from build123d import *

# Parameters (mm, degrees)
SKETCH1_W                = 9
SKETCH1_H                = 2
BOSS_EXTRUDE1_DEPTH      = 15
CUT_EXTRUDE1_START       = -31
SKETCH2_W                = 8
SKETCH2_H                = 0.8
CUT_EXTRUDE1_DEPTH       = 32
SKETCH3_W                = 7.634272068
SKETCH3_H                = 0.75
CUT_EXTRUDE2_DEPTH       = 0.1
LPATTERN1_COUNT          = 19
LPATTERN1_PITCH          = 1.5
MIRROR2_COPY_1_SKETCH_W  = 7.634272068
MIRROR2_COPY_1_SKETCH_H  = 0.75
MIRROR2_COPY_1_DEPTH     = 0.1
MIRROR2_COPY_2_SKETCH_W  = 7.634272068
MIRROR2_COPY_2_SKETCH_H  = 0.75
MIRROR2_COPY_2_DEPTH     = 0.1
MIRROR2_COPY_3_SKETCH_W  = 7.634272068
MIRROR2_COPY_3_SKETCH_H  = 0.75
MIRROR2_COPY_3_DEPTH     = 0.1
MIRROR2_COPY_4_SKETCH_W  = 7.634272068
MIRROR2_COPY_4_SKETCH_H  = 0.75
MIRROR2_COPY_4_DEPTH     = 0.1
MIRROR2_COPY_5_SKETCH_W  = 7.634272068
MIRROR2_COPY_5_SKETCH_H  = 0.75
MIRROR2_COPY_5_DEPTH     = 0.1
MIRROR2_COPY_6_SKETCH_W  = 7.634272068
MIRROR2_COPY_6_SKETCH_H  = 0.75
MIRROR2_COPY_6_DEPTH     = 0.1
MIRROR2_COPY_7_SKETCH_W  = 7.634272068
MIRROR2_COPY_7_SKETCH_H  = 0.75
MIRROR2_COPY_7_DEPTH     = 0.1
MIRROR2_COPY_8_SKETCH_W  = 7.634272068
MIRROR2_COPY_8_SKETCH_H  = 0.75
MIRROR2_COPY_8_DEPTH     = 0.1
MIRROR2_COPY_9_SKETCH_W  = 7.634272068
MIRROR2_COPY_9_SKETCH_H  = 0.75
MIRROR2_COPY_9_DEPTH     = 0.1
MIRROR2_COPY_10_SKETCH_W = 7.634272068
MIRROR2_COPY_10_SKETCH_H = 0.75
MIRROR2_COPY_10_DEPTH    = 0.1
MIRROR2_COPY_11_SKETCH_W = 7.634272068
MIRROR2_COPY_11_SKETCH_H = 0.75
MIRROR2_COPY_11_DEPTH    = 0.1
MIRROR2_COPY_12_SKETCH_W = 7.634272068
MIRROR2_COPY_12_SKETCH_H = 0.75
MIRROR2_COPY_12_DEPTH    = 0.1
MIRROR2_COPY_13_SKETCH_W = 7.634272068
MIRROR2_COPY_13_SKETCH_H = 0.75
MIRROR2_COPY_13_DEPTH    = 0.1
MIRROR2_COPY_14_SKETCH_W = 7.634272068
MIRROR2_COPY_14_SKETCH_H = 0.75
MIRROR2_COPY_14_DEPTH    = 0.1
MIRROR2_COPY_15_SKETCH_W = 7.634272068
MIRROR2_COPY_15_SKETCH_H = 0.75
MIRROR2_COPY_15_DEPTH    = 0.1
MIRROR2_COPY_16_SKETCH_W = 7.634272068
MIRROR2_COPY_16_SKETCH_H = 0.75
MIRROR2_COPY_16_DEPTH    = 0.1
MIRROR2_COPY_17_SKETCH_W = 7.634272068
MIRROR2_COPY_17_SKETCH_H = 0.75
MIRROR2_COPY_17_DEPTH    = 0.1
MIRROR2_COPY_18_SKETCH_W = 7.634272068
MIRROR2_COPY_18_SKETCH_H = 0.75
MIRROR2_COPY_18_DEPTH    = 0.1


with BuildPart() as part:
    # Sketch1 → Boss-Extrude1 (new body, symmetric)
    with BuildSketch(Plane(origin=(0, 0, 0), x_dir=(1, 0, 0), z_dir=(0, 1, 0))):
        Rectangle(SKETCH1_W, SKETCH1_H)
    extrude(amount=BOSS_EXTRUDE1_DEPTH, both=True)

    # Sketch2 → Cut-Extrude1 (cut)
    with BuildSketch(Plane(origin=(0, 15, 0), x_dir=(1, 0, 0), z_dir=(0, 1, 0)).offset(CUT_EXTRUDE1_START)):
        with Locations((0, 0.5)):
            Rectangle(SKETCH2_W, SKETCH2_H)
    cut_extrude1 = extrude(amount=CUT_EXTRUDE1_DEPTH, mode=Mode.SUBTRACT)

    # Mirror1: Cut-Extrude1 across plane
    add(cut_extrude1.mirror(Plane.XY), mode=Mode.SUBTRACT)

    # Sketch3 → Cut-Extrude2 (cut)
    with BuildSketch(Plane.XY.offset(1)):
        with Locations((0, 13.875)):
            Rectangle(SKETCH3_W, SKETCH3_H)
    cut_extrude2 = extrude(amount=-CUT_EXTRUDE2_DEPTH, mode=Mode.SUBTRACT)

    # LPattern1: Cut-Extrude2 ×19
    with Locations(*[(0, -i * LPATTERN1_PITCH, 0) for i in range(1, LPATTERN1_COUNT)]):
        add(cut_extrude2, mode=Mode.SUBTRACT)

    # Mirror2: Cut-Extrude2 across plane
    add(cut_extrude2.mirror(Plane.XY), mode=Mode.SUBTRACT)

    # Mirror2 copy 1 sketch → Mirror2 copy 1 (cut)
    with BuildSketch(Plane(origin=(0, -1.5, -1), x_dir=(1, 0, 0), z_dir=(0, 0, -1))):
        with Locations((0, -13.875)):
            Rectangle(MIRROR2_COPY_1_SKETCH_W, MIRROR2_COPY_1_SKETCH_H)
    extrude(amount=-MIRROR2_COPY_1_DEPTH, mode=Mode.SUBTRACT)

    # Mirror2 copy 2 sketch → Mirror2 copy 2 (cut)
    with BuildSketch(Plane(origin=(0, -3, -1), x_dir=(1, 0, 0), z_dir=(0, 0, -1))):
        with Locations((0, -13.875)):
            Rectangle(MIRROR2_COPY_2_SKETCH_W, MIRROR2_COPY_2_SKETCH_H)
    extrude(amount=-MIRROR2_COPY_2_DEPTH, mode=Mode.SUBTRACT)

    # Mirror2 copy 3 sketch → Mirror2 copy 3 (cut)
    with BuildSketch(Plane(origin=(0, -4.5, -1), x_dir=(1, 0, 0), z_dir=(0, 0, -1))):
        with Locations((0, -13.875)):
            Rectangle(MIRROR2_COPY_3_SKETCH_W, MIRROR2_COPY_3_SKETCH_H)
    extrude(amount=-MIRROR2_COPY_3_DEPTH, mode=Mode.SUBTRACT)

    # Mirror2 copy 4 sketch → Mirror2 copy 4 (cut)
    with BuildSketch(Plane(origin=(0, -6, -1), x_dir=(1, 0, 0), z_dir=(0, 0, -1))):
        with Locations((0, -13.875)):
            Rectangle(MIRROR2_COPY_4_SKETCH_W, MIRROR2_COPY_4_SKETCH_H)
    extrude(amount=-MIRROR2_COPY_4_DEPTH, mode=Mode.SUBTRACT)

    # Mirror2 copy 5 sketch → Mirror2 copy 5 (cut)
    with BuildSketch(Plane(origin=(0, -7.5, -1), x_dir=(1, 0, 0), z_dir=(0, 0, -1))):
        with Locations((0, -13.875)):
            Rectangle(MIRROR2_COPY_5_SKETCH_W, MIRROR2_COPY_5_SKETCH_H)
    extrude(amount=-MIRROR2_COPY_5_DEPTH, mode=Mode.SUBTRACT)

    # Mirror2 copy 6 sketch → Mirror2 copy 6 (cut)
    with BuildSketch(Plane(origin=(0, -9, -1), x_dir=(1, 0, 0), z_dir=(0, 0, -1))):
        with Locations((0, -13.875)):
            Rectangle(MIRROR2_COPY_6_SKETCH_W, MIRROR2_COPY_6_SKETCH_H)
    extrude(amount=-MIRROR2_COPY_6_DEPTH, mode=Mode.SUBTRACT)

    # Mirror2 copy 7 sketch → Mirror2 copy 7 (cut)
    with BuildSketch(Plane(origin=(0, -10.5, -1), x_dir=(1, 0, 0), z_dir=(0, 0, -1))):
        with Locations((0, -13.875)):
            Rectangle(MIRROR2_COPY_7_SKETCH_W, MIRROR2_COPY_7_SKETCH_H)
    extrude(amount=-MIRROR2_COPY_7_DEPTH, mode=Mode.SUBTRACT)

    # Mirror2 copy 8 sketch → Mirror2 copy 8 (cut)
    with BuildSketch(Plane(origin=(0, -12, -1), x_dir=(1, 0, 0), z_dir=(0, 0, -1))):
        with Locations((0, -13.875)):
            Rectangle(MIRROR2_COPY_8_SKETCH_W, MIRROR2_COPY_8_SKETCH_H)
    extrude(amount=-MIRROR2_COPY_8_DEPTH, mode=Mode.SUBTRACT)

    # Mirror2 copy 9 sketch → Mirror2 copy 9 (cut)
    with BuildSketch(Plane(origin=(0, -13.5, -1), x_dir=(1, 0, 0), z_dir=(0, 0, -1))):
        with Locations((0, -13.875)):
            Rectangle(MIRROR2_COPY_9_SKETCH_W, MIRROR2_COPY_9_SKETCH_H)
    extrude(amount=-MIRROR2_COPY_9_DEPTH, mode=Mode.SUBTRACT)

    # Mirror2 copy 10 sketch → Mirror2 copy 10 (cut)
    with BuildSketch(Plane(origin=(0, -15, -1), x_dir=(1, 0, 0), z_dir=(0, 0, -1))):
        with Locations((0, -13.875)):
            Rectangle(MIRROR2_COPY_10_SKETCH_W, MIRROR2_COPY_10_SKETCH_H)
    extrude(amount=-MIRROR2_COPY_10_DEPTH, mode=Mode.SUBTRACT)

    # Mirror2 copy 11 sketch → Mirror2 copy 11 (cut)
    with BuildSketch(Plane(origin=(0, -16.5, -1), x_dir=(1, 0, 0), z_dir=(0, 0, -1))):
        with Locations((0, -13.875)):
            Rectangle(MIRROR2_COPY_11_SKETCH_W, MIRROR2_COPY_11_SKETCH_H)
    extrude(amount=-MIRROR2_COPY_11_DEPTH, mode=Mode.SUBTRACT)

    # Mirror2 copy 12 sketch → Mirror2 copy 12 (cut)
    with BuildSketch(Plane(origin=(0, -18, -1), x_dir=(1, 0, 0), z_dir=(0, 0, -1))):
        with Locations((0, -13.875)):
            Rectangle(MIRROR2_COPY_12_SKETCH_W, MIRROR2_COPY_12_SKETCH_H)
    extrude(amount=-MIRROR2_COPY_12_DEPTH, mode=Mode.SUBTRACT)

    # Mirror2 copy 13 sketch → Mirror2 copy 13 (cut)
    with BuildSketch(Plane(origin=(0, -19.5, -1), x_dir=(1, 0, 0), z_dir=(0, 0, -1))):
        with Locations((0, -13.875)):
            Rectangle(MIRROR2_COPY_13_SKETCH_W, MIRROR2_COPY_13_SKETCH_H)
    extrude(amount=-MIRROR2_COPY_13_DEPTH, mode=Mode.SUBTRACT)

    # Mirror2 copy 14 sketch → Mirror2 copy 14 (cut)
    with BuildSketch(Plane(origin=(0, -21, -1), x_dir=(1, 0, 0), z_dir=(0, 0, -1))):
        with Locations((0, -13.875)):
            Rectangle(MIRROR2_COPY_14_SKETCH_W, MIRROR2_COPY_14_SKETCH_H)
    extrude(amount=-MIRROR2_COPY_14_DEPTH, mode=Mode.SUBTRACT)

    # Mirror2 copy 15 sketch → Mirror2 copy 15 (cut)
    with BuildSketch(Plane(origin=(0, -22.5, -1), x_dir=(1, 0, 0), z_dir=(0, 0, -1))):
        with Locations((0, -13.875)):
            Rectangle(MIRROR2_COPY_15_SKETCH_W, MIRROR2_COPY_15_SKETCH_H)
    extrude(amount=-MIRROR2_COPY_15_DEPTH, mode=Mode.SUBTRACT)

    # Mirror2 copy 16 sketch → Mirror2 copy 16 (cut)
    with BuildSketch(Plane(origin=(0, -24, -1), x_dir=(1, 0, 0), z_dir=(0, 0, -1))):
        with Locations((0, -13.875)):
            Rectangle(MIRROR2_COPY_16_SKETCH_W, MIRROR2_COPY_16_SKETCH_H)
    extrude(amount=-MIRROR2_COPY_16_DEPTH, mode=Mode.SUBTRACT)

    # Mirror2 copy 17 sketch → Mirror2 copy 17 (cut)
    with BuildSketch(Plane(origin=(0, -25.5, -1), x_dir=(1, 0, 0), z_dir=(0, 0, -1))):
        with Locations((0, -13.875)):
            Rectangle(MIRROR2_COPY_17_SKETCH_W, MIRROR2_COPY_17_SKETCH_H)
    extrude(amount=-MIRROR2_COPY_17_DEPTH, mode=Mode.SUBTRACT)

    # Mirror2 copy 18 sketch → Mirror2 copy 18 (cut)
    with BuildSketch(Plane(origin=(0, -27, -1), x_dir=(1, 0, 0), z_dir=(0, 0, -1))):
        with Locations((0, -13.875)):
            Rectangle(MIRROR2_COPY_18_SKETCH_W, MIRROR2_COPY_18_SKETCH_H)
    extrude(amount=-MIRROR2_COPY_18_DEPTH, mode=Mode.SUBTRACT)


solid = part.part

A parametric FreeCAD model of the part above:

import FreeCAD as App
import Part
import Sketcher

V = App.Vector
Q = App.Units.Quantity

doc = App.newDocument("Part")
body = doc.addObject("PartDesign::Body", "Body")

# Sketch on XZ plane
sketch1 = body.newObject("Sketcher::SketchObject", "Sketch")
sketch1.AttachmentSupport = (doc.getObject("XZ_Plane"), [""])
sketch1.MapMode = "FlatFace"
sketch1.addGeometry(Part.LineSegment(V(-4.5, -1, 0), V(-4.5, 1, 0)), False)
sketch1.addGeometry(Part.LineSegment(V(-4.5, 1, 0), V(4.5, 1, 0)), False)
sketch1.addGeometry(Part.LineSegment(V(4.5, 1, 0), V(4.5, -1, 0)), False)
sketch1.addGeometry(Part.LineSegment(V(4.5, -1, 0), V(-4.5, -1, 0)), False)
sketch1.addConstraint(Sketcher.Constraint("Coincident", 0, 2, 1, 1))
sketch1.addConstraint(Sketcher.Constraint("Coincident", 1, 2, 2, 1))
sketch1.addConstraint(Sketcher.Constraint("Coincident", 2, 2, 3, 1))
sketch1.addConstraint(Sketcher.Constraint("Coincident", 3, 2, 0, 1))
sketch1.addConstraint(Sketcher.Constraint("Vertical", 0))
sketch1.addConstraint(Sketcher.Constraint("Horizontal", 1))
sketch1.addConstraint(Sketcher.Constraint("Vertical", 2))
sketch1.addConstraint(Sketcher.Constraint("Horizontal", 3))
sketch1.addConstraint(Sketcher.Constraint("Symmetric", 0, 2, 2, 2, -1, 1))
sketch1.addConstraint(Sketcher.Constraint("DistanceX", 1, 1, 1, 2, Q("9 mm")))
sketch1.addConstraint(Sketcher.Constraint("DistanceY", 0, 1, 0, 2, Q("2 mm")))
pad1 = body.newObject("PartDesign::Pad", "Pad")
pad1.Profile = sketch1
pad1.Length = 30
pad1.Midplane = True

# Sketch on XZ plane
sketch2 = body.newObject("Sketcher::SketchObject", "Sketch001")
sketch2.AttachmentSupport = (doc.getObject("XZ_Plane"), [""])
sketch2.MapMode = "FlatFace"
sketch2.AttachmentOffset = App.Placement(V(0, 0, 16), App.Rotation())
sketch2.addGeometry(Part.LineSegment(V(-4, -0.9, 0), V(-4, -0.1, 0)), False)
sketch2.addGeometry(Part.LineSegment(V(-4, -0.1, 0), V(4, -0.1, 0)), False)
sketch2.addGeometry(Part.LineSegment(V(4, -0.1, 0), V(4, -0.9, 0)), False)
sketch2.addGeometry(Part.LineSegment(V(4, -0.9, 0), V(-4, -0.9, 0)), False)
sketch2.addConstraint(Sketcher.Constraint("Coincident", 0, 2, 1, 1))
sketch2.addConstraint(Sketcher.Constraint("Coincident", 1, 2, 2, 1))
sketch2.addConstraint(Sketcher.Constraint("Coincident", 2, 2, 3, 1))
sketch2.addConstraint(Sketcher.Constraint("Coincident", 3, 2, 0, 1))
sketch2.addConstraint(Sketcher.Constraint("Vertical", 0))
sketch2.addConstraint(Sketcher.Constraint("Horizontal", 1))
sketch2.addConstraint(Sketcher.Constraint("Vertical", 2))
sketch2.addConstraint(Sketcher.Constraint("Horizontal", 3))
sketch2.addConstraint(Sketcher.Constraint("DistanceX", 1, 1, 1, 2, Q("8 mm")))
sketch2.addConstraint(Sketcher.Constraint("DistanceY", 0, 1, 0, 2, Q("0.8 mm")))
sketch2.addConstraint(Sketcher.Constraint("DistanceX", 0, 2, -1, 1, Q("4 mm")))
sketch2.addConstraint(Sketcher.Constraint("DistanceY", 0, 2, -1, 1, Q("0.1 mm")))
pocket1 = body.newObject("PartDesign::Pocket", "Pocket")
pocket1.Profile = sketch2
pocket1.Length = 32
doc.recompute()

mirrored = body.newObject("PartDesign::Mirrored", "Mirrored")
mirrored.Originals = [pocket1]
mirrored.MirrorPlane = (doc.getObject("XY_Plane"), [""])
body.Tip = mirrored

# Sketch on XY plane
sketch3 = body.newObject("Sketcher::SketchObject", "Sketch002")
sketch3.AttachmentSupport = (doc.getObject("XY_Plane"), [""])
sketch3.MapMode = "FlatFace"
sketch3.AttachmentOffset = App.Placement(V(0, 0, 1), App.Rotation())
sketch3.addGeometry(Part.LineSegment(V(-3.8, 14.2, 0), V(-3.8, 13.5, 0)), False)
sketch3.addGeometry(Part.LineSegment(V(-3.8, 13.5, 0), V(3.8, 13.5, 0)), False)
sketch3.addGeometry(Part.LineSegment(V(3.8, 13.5, 0), V(3.8, 14.2, 0)), False)
sketch3.addGeometry(Part.LineSegment(V(3.8, 14.2, 0), V(-3.8, 14.2, 0)), False)
sketch3.addConstraint(Sketcher.Constraint("Coincident", 0, 2, 1, 1))
sketch3.addConstraint(Sketcher.Constraint("Coincident", 1, 2, 2, 1))
sketch3.addConstraint(Sketcher.Constraint("Coincident", 2, 2, 3, 1))
sketch3.addConstraint(Sketcher.Constraint("Coincident", 3, 2, 0, 1))
sketch3.addConstraint(Sketcher.Constraint("Vertical", 0))
sketch3.addConstraint(Sketcher.Constraint("Horizontal", 1))
sketch3.addConstraint(Sketcher.Constraint("Vertical", 2))
sketch3.addConstraint(Sketcher.Constraint("Horizontal", 3))
sketch3.addConstraint(Sketcher.Constraint("DistanceY", 0, 2, 0, 1, Q("0.75 mm")))
sketch3.addConstraint(Sketcher.Constraint("DistanceY", -1, 1, 0, 2, Q("13.5 mm")))
sketch3.addConstraint(Sketcher.Constraint("DistanceX", 1, 1, 1, 2, Q("7.634272 mm")))
sketch3.addConstraint(Sketcher.Constraint("DistanceX", 0, 2, -1, 1, Q("3.817136 mm")))
pocket2 = body.newObject("PartDesign::Pocket", "Pocket001")
pocket2.Profile = sketch3
pocket2.Length = 0.1
doc.recompute()

linearpattern = body.newObject("PartDesign::LinearPattern", "LinearPattern")
linearpattern.Originals = [pocket2]
linearpattern.Direction = (doc.getObject("Y_Axis"), [""])
linearpattern.Mode = "offset"
linearpattern.Offset = 1.5
linearpattern.Occurrences = 19
linearpattern.Reversed = True
body.Tip = linearpattern
doc.recompute()

mirrored2 = body.newObject("PartDesign::Mirrored", "Mirrored001")
mirrored2.Originals = [pocket2]
mirrored2.MirrorPlane = (doc.getObject("XY_Plane"), [""])
body.Tip = mirrored2

# Sketch on XY plane
sketch4 = body.newObject("Sketcher::SketchObject", "Sketch003")
sketch4.AttachmentSupport = (doc.getObject("XY_Plane"), [""])
sketch4.MapMode = "FlatFace"
sketch4.AttachmentOffset = App.Placement(V(0, 0, -1), App.Rotation())
sketch4.addGeometry(Part.LineSegment(V(-3.8, 12, 0), V(-3.8, 12.8, 0)), False)
sketch4.addGeometry(Part.LineSegment(V(-3.8, 12.8, 0), V(3.8, 12.8, 0)), False)
sketch4.addGeometry(Part.LineSegment(V(3.8, 12.8, 0), V(3.8, 12, 0)), False)
sketch4.addGeometry(Part.LineSegment(V(3.8, 12, 0), V(-3.8, 12, 0)), False)
sketch4.addConstraint(Sketcher.Constraint("Coincident", 0, 2, 1, 1))
sketch4.addConstraint(Sketcher.Constraint("Coincident", 1, 2, 2, 1))
sketch4.addConstraint(Sketcher.Constraint("Coincident", 2, 2, 3, 1))
sketch4.addConstraint(Sketcher.Constraint("Coincident", 3, 2, 0, 1))
sketch4.addConstraint(Sketcher.Constraint("Vertical", 0))
sketch4.addConstraint(Sketcher.Constraint("Horizontal", 1))
sketch4.addConstraint(Sketcher.Constraint("Vertical", 2))
sketch4.addConstraint(Sketcher.Constraint("Horizontal", 3))
sketch4.addConstraint(Sketcher.Constraint("DistanceY", -1, 1, 2, 2, Q("12 mm")))
sketch4.addConstraint(Sketcher.Constraint("DistanceY", 0, 1, 0, 2, Q("0.75 mm")))
sketch4.addConstraint(Sketcher.Constraint("DistanceX", 1, 1, 1, 2, Q("7.634272 mm")))
sketch4.addConstraint(Sketcher.Constraint("DistanceX", 0, 2, -1, 1, Q("3.817136 mm")))
pocket3 = body.newObject("PartDesign::Pocket", "Pocket002")
pocket3.Profile = sketch4
pocket3.Length = 0.1
pocket3.Reversed = True

# Sketch on XY plane
sketch5 = body.newObject("Sketcher::SketchObject", "Sketch004")
sketch5.AttachmentSupport = (doc.getObject("XY_Plane"), [""])
sketch5.MapMode = "FlatFace"
sketch5.AttachmentOffset = App.Placement(V(0, 0, -1), App.Rotation())
sketch5.addGeometry(Part.LineSegment(V(-3.8, 10.5, 0), V(-3.8, 11.2, 0)), False)
sketch5.addGeometry(Part.LineSegment(V(-3.8, 11.2, 0), V(3.8, 11.2, 0)), False)
sketch5.addGeometry(Part.LineSegment(V(3.8, 11.2, 0), V(3.8, 10.5, 0)), False)
sketch5.addGeometry(Part.LineSegment(V(3.8, 10.5, 0), V(-3.8, 10.5, 0)), False)
sketch5.addConstraint(Sketcher.Constraint("Coincident", 0, 2, 1, 1))
sketch5.addConstraint(Sketcher.Constraint("Coincident", 1, 2, 2, 1))
sketch5.addConstraint(Sketcher.Constraint("Coincident", 2, 2, 3, 1))
sketch5.addConstraint(Sketcher.Constraint("Coincident", 3, 2, 0, 1))
sketch5.addConstraint(Sketcher.Constraint("Vertical", 0))
sketch5.addConstraint(Sketcher.Constraint("Horizontal", 1))
sketch5.addConstraint(Sketcher.Constraint("Vertical", 2))
sketch5.addConstraint(Sketcher.Constraint("Horizontal", 3))
sketch5.addConstraint(Sketcher.Constraint("DistanceY", 0, 1, 0, 2, Q("0.75 mm")))
sketch5.addConstraint(Sketcher.Constraint("DistanceY", -1, 1, 2, 2, Q("10.5 mm")))
sketch5.addConstraint(Sketcher.Constraint("DistanceX", 1, 1, 1, 2, Q("7.634272 mm")))
sketch5.addConstraint(Sketcher.Constraint("DistanceX", 0, 2, -1, 1, Q("3.817136 mm")))
pocket4 = body.newObject("PartDesign::Pocket", "Pocket003")
pocket4.Profile = sketch5
pocket4.Length = 0.1
pocket4.Reversed = True

# Sketch on XY plane
sketch6 = body.newObject("Sketcher::SketchObject", "Sketch005")
sketch6.AttachmentSupport = (doc.getObject("XY_Plane"), [""])
sketch6.MapMode = "FlatFace"
sketch6.AttachmentOffset = App.Placement(V(0, 0, -1), App.Rotation())
sketch6.addGeometry(Part.LineSegment(V(-3.8, 9, 0), V(-3.8, 9.8, 0)), False)
sketch6.addGeometry(Part.LineSegment(V(-3.8, 9.8, 0), V(3.8, 9.8, 0)), False)
sketch6.addGeometry(Part.LineSegment(V(3.8, 9.8, 0), V(3.8, 9, 0)), False)
sketch6.addGeometry(Part.LineSegment(V(3.8, 9, 0), V(-3.8, 9, 0)), False)
sketch6.addConstraint(Sketcher.Constraint("Coincident", 0, 2, 1, 1))
sketch6.addConstraint(Sketcher.Constraint("Coincident", 1, 2, 2, 1))
sketch6.addConstraint(Sketcher.Constraint("Coincident", 2, 2, 3, 1))
sketch6.addConstraint(Sketcher.Constraint("Coincident", 3, 2, 0, 1))
sketch6.addConstraint(Sketcher.Constraint("Vertical", 0))
sketch6.addConstraint(Sketcher.Constraint("Horizontal", 1))
sketch6.addConstraint(Sketcher.Constraint("Vertical", 2))
sketch6.addConstraint(Sketcher.Constraint("Horizontal", 3))
sketch6.addConstraint(Sketcher.Constraint("DistanceY", -1, 1, 2, 2, Q("9 mm")))
sketch6.addConstraint(Sketcher.Constraint("DistanceY", 0, 1, 0, 2, Q("0.75 mm")))
sketch6.addConstraint(Sketcher.Constraint("DistanceX", 1, 1, 1, 2, Q("7.634272 mm")))
sketch6.addConstraint(Sketcher.Constraint("DistanceX", 0, 2, -1, 1, Q("3.817136 mm")))
pocket5 = body.newObject("PartDesign::Pocket", "Pocket004")
pocket5.Profile = sketch6
pocket5.Length = 0.1
pocket5.Reversed = True

# Sketch on XY plane
sketch7 = body.newObject("Sketcher::SketchObject", "Sketch006")
sketch7.AttachmentSupport = (doc.getObject("XY_Plane"), [""])
sketch7.MapMode = "FlatFace"
sketch7.AttachmentOffset = App.Placement(V(0, 0, -1), App.Rotation())
sketch7.addGeometry(Part.LineSegment(V(-3.8, 7.5, 0), V(-3.8, 8.2, 0)), False)
sketch7.addGeometry(Part.LineSegment(V(-3.8, 8.2, 0), V(3.8, 8.2, 0)), False)
sketch7.addGeometry(Part.LineSegment(V(3.8, 8.2, 0), V(3.8, 7.5, 0)), False)
sketch7.addGeometry(Part.LineSegment(V(3.8, 7.5, 0), V(-3.8, 7.5, 0)), False)
sketch7.addConstraint(Sketcher.Constraint("Coincident", 0, 2, 1, 1))
sketch7.addConstraint(Sketcher.Constraint("Coincident", 1, 2, 2, 1))
sketch7.addConstraint(Sketcher.Constraint("Coincident", 2, 2, 3, 1))
sketch7.addConstraint(Sketcher.Constraint("Coincident", 3, 2, 0, 1))
sketch7.addConstraint(Sketcher.Constraint("Vertical", 0))
sketch7.addConstraint(Sketcher.Constraint("Horizontal", 1))
sketch7.addConstraint(Sketcher.Constraint("Vertical", 2))
sketch7.addConstraint(Sketcher.Constraint("Horizontal", 3))
sketch7.addConstraint(Sketcher.Constraint("DistanceY", 0, 1, 0, 2, Q("0.75 mm")))
sketch7.addConstraint(Sketcher.Constraint("DistanceY", -1, 1, 2, 2, Q("7.5 mm")))
sketch7.addConstraint(Sketcher.Constraint("DistanceX", 1, 1, 1, 2, Q("7.634272 mm")))
sketch7.addConstraint(Sketcher.Constraint("DistanceX", 0, 2, -1, 1, Q("3.817136 mm")))
pocket6 = body.newObject("PartDesign::Pocket", "Pocket005")
pocket6.Profile = sketch7
pocket6.Length = 0.1
pocket6.Reversed = True

# Sketch on XY plane
sketch8 = body.newObject("Sketcher::SketchObject", "Sketch007")
sketch8.AttachmentSupport = (doc.getObject("XY_Plane"), [""])
sketch8.MapMode = "FlatFace"
sketch8.AttachmentOffset = App.Placement(V(0, 0, -1), App.Rotation())
sketch8.addGeometry(Part.LineSegment(V(-3.8, 6, 0), V(-3.8, 6.8, 0)), False)
sketch8.addGeometry(Part.LineSegment(V(-3.8, 6.8, 0), V(3.8, 6.8, 0)), False)
sketch8.addGeometry(Part.LineSegment(V(3.8, 6.8, 0), V(3.8, 6, 0)), False)
sketch8.addGeometry(Part.LineSegment(V(3.8, 6, 0), V(-3.8, 6, 0)), False)
sketch8.addConstraint(Sketcher.Constraint("Coincident", 0, 2, 1, 1))
sketch8.addConstraint(Sketcher.Constraint("Coincident", 1, 2, 2, 1))
sketch8.addConstraint(Sketcher.Constraint("Coincident", 2, 2, 3, 1))
sketch8.addConstraint(Sketcher.Constraint("Coincident", 3, 2, 0, 1))
sketch8.addConstraint(Sketcher.Constraint("Vertical", 0))
sketch8.addConstraint(Sketcher.Constraint("Horizontal", 1))
sketch8.addConstraint(Sketcher.Constraint("Vertical", 2))
sketch8.addConstraint(Sketcher.Constraint("Horizontal", 3))
sketch8.addConstraint(Sketcher.Constraint("DistanceY", -1, 1, 2, 2, Q("6 mm")))
sketch8.addConstraint(Sketcher.Constraint("DistanceY", 0, 1, 0, 2, Q("0.75 mm")))
sketch8.addConstraint(Sketcher.Constraint("DistanceX", 1, 1, 1, 2, Q("7.634272 mm")))
sketch8.addConstraint(Sketcher.Constraint("DistanceX", 0, 2, -1, 1, Q("3.817136 mm")))
pocket7 = body.newObject("PartDesign::Pocket", "Pocket006")
pocket7.Profile = sketch8
pocket7.Length = 0.1
pocket7.Reversed = True

# Sketch on XY plane
sketch9 = body.newObject("Sketcher::SketchObject", "Sketch008")
sketch9.AttachmentSupport = (doc.getObject("XY_Plane"), [""])
sketch9.MapMode = "FlatFace"
sketch9.AttachmentOffset = App.Placement(V(0, 0, -1), App.Rotation())
sketch9.addGeometry(Part.LineSegment(V(-3.8, 4.5, 0), V(-3.8, 5.2, 0)), False)
sketch9.addGeometry(Part.LineSegment(V(-3.8, 5.2, 0), V(3.8, 5.2, 0)), False)
sketch9.addGeometry(Part.LineSegment(V(3.8, 5.2, 0), V(3.8, 4.5, 0)), False)
sketch9.addGeometry(Part.LineSegment(V(3.8, 4.5, 0), V(-3.8, 4.5, 0)), False)
sketch9.addConstraint(Sketcher.Constraint("Coincident", 0, 2, 1, 1))
sketch9.addConstraint(Sketcher.Constraint("Coincident", 1, 2, 2, 1))
sketch9.addConstraint(Sketcher.Constraint("Coincident", 2, 2, 3, 1))
sketch9.addConstraint(Sketcher.Constraint("Coincident", 3, 2, 0, 1))
sketch9.addConstraint(Sketcher.Constraint("Vertical", 0))
sketch9.addConstraint(Sketcher.Constraint("Horizontal", 1))
sketch9.addConstraint(Sketcher.Constraint("Vertical", 2))
sketch9.addConstraint(Sketcher.Constraint("Horizontal", 3))
sketch9.addConstraint(Sketcher.Constraint("DistanceY", 0, 1, 0, 2, Q("0.75 mm")))
sketch9.addConstraint(Sketcher.Constraint("DistanceY", -1, 1, 2, 2, Q("4.5 mm")))
sketch9.addConstraint(Sketcher.Constraint("DistanceX", 1, 1, 1, 2, Q("7.634272 mm")))
sketch9.addConstraint(Sketcher.Constraint("DistanceX", 0, 2, -1, 1, Q("3.817136 mm")))
pocket8 = body.newObject("PartDesign::Pocket", "Pocket007")
pocket8.Profile = sketch9
pocket8.Length = 0.1
pocket8.Reversed = True

# Sketch on XY plane
sketch10 = body.newObject("Sketcher::SketchObject", "Sketch009")
sketch10.AttachmentSupport = (doc.getObject("XY_Plane"), [""])
sketch10.MapMode = "FlatFace"
sketch10.AttachmentOffset = App.Placement(V(0, 0, -1), App.Rotation())
sketch10.addGeometry(Part.LineSegment(V(-3.8, 3, 0), V(-3.8, 3.8, 0)), False)
sketch10.addGeometry(Part.LineSegment(V(-3.8, 3.8, 0), V(3.8, 3.8, 0)), False)
sketch10.addGeometry(Part.LineSegment(V(3.8, 3.8, 0), V(3.8, 3, 0)), False)
sketch10.addGeometry(Part.LineSegment(V(3.8, 3, 0), V(-3.8, 3, 0)), False)
sketch10.addConstraint(Sketcher.Constraint("Coincident", 0, 2, 1, 1))
sketch10.addConstraint(Sketcher.Constraint("Coincident", 1, 2, 2, 1))
sketch10.addConstraint(Sketcher.Constraint("Coincident", 2, 2, 3, 1))
sketch10.addConstraint(Sketcher.Constraint("Coincident", 3, 2, 0, 1))
sketch10.addConstraint(Sketcher.Constraint("Vertical", 0))
sketch10.addConstraint(Sketcher.Constraint("Horizontal", 1))
sketch10.addConstraint(Sketcher.Constraint("Vertical", 2))
sketch10.addConstraint(Sketcher.Constraint("Horizontal", 3))
sketch10.addConstraint(Sketcher.Constraint("DistanceY", -1, 1, 2, 2, Q("3 mm")))
sketch10.addConstraint(Sketcher.Constraint("DistanceY", 0, 1, 0, 2, Q("0.75 mm")))
sketch10.addConstraint(Sketcher.Constraint("DistanceX", 1, 1, 1, 2, Q("7.634272 mm")))
sketch10.addConstraint(Sketcher.Constraint("DistanceX", 0, 2, -1, 1, Q("3.817136 mm")))
pocket9 = body.newObject("PartDesign::Pocket", "Pocket008")
pocket9.Profile = sketch10
pocket9.Length = 0.1
pocket9.Reversed = True

# Sketch on XY plane
sketch11 = body.newObject("Sketcher::SketchObject", "Sketch010")
sketch11.AttachmentSupport = (doc.getObject("XY_Plane"), [""])
sketch11.MapMode = "FlatFace"
sketch11.AttachmentOffset = App.Placement(V(0, 0, -1), App.Rotation())
sketch11.addGeometry(Part.LineSegment(V(-3.8, 1.5, 0), V(-3.8, 2.2, 0)), False)
sketch11.addGeometry(Part.LineSegment(V(-3.8, 2.2, 0), V(3.8, 2.2, 0)), False)
sketch11.addGeometry(Part.LineSegment(V(3.8, 2.2, 0), V(3.8, 1.5, 0)), False)
sketch11.addGeometry(Part.LineSegment(V(3.8, 1.5, 0), V(-3.8, 1.5, 0)), False)
sketch11.addConstraint(Sketcher.Constraint("Coincident", 0, 2, 1, 1))
sketch11.addConstraint(Sketcher.Constraint("Coincident", 1, 2, 2, 1))
sketch11.addConstraint(Sketcher.Constraint("Coincident", 2, 2, 3, 1))
sketch11.addConstraint(Sketcher.Constraint("Coincident", 3, 2, 0, 1))
sketch11.addConstraint(Sketcher.Constraint("Vertical", 0))
sketch11.addConstraint(Sketcher.Constraint("Horizontal", 1))
sketch11.addConstraint(Sketcher.Constraint("Vertical", 2))
sketch11.addConstraint(Sketcher.Constraint("Horizontal", 3))
sketch11.addConstraint(Sketcher.Constraint("DistanceY", 0, 1, 0, 2, Q("0.75 mm")))
sketch11.addConstraint(Sketcher.Constraint("DistanceY", -1, 1, 2, 2, Q("1.5 mm")))
sketch11.addConstraint(Sketcher.Constraint("DistanceX", 1, 1, 1, 2, Q("7.634272 mm")))
sketch11.addConstraint(Sketcher.Constraint("DistanceX", 0, 2, -1, 1, Q("3.817136 mm")))
pocket10 = body.newObject("PartDesign::Pocket", "Pocket009")
pocket10.Profile = sketch11
pocket10.Length = 0.1
pocket10.Reversed = True

# Sketch on XY plane
sketch12 = body.newObject("Sketcher::SketchObject", "Sketch011")
sketch12.AttachmentSupport = (doc.getObject("XY_Plane"), [""])
sketch12.MapMode = "FlatFace"
sketch12.AttachmentOffset = App.Placement(V(0, 0, -1), App.Rotation())
sketch12.addGeometry(Part.LineSegment(V(-3.8, 0, 0), V(-3.8, 0.8, 0)), False)
sketch12.addGeometry(Part.LineSegment(V(-3.8, 0.8, 0), V(3.8, 0.8, 0)), False)
sketch12.addGeometry(Part.LineSegment(V(3.8, 0.8, 0), V(3.8, 0, 0)), False)
sketch12.addGeometry(Part.LineSegment(V(3.8, 0, 0), V(-3.8, 0, 0)), False)
sketch12.addConstraint(Sketcher.Constraint("Coincident", 0, 2, 1, 1))
sketch12.addConstraint(Sketcher.Constraint("Coincident", 1, 2, 2, 1))
sketch12.addConstraint(Sketcher.Constraint("Coincident", 2, 2, 3, 1))
sketch12.addConstraint(Sketcher.Constraint("Coincident", 3, 2, 0, 1))
sketch12.addConstraint(Sketcher.Constraint("Vertical", 0))
sketch12.addConstraint(Sketcher.Constraint("Horizontal", 1))
sketch12.addConstraint(Sketcher.Constraint("Vertical", 2))
sketch12.addConstraint(Sketcher.Constraint("Horizontal", 3))
sketch12.addConstraint(Sketcher.Constraint("Symmetric", 2, 2, 3, 2, -1, 1))
sketch12.addConstraint(Sketcher.Constraint("DistanceY", 0, 1, 0, 2, Q("0.75 mm")))
sketch12.addConstraint(Sketcher.Constraint("DistanceX", 1, 1, 1, 2, Q("7.634272 mm")))
pocket11 = body.newObject("PartDesign::Pocket", "Pocket010")
pocket11.Profile = sketch12
pocket11.Length = 0.1
pocket11.Reversed = True

# Sketch on XY plane
sketch13 = body.newObject("Sketcher::SketchObject", "Sketch012")
sketch13.AttachmentSupport = (doc.getObject("XY_Plane"), [""])
sketch13.MapMode = "FlatFace"
sketch13.AttachmentOffset = App.Placement(V(0, 0, -1), App.Rotation())
sketch13.addGeometry(Part.LineSegment(V(-3.8, -1.5, 0), V(-3.8, -0.8, 0)), False)
sketch13.addGeometry(Part.LineSegment(V(-3.8, -0.8, 0), V(3.8, -0.8, 0)), False)
sketch13.addGeometry(Part.LineSegment(V(3.8, -0.8, 0), V(3.8, -1.5, 0)), False)
sketch13.addGeometry(Part.LineSegment(V(3.8, -1.5, 0), V(-3.8, -1.5, 0)), False)
sketch13.addConstraint(Sketcher.Constraint("Coincident", 0, 2, 1, 1))
sketch13.addConstraint(Sketcher.Constraint("Coincident", 1, 2, 2, 1))
sketch13.addConstraint(Sketcher.Constraint("Coincident", 2, 2, 3, 1))
sketch13.addConstraint(Sketcher.Constraint("Coincident", 3, 2, 0, 1))
sketch13.addConstraint(Sketcher.Constraint("Vertical", 0))
sketch13.addConstraint(Sketcher.Constraint("Horizontal", 1))
sketch13.addConstraint(Sketcher.Constraint("Vertical", 2))
sketch13.addConstraint(Sketcher.Constraint("Horizontal", 3))
sketch13.addConstraint(Sketcher.Constraint("DistanceY", 0, 1, 0, 2, Q("0.75 mm")))
sketch13.addConstraint(Sketcher.Constraint("DistanceY", 2, 2, -1, 1, Q("1.5 mm")))
sketch13.addConstraint(Sketcher.Constraint("DistanceX", 1, 1, 1, 2, Q("7.634272 mm")))
sketch13.addConstraint(Sketcher.Constraint("DistanceX", 0, 2, -1, 1, Q("3.817136 mm")))
pocket12 = body.newObject("PartDesign::Pocket", "Pocket011")
pocket12.Profile = sketch13
pocket12.Length = 0.1
pocket12.Reversed = True

# Sketch on XY plane
sketch14 = body.newObject("Sketcher::SketchObject", "Sketch013")
sketch14.AttachmentSupport = (doc.getObject("XY_Plane"), [""])
sketch14.MapMode = "FlatFace"
sketch14.AttachmentOffset = App.Placement(V(0, 0, -1), App.Rotation())
sketch14.addGeometry(Part.LineSegment(V(-3.8, -3, 0), V(-3.8, -2.2, 0)), False)
sketch14.addGeometry(Part.LineSegment(V(-3.8, -2.2, 0), V(3.8, -2.2, 0)), False)
sketch14.addGeometry(Part.LineSegment(V(3.8, -2.2, 0), V(3.8, -3, 0)), False)
sketch14.addGeometry(Part.LineSegment(V(3.8, -3, 0), V(-3.8, -3, 0)), False)
sketch14.addConstraint(Sketcher.Constraint("Coincident", 0, 2, 1, 1))
sketch14.addConstraint(Sketcher.Constraint("Coincident", 1, 2, 2, 1))
sketch14.addConstraint(Sketcher.Constraint("Coincident", 2, 2, 3, 1))
sketch14.addConstraint(Sketcher.Constraint("Coincident", 3, 2, 0, 1))
sketch14.addConstraint(Sketcher.Constraint("Vertical", 0))
sketch14.addConstraint(Sketcher.Constraint("Horizontal", 1))
sketch14.addConstraint(Sketcher.Constraint("Vertical", 2))
sketch14.addConstraint(Sketcher.Constraint("Horizontal", 3))
sketch14.addConstraint(Sketcher.Constraint("DistanceY", 2, 2, -1, 1, Q("3 mm")))
sketch14.addConstraint(Sketcher.Constraint("DistanceY", 0, 1, 0, 2, Q("0.75 mm")))
sketch14.addConstraint(Sketcher.Constraint("DistanceX", 1, 1, 1, 2, Q("7.634272 mm")))
sketch14.addConstraint(Sketcher.Constraint("DistanceX", 0, 2, -1, 1, Q("3.817136 mm")))
pocket13 = body.newObject("PartDesign::Pocket", "Pocket012")
pocket13.Profile = sketch14
pocket13.Length = 0.1
pocket13.Reversed = True

# Sketch on XY plane
sketch15 = body.newObject("Sketcher::SketchObject", "Sketch014")
sketch15.AttachmentSupport = (doc.getObject("XY_Plane"), [""])
sketch15.MapMode = "FlatFace"
sketch15.AttachmentOffset = App.Placement(V(0, 0, -1), App.Rotation())
sketch15.addGeometry(Part.LineSegment(V(-3.8, -4.5, 0), V(-3.8, -3.8, 0)), False)
sketch15.addGeometry(Part.LineSegment(V(-3.8, -3.8, 0), V(3.8, -3.8, 0)), False)
sketch15.addGeometry(Part.LineSegment(V(3.8, -3.8, 0), V(3.8, -4.5, 0)), False)
sketch15.addGeometry(Part.LineSegment(V(3.8, -4.5, 0), V(-3.8, -4.5, 0)), False)
sketch15.addConstraint(Sketcher.Constraint("Coincident", 0, 2, 1, 1))
sketch15.addConstraint(Sketcher.Constraint("Coincident", 1, 2, 2, 1))
sketch15.addConstraint(Sketcher.Constraint("Coincident", 2, 2, 3, 1))
sketch15.addConstraint(Sketcher.Constraint("Coincident", 3, 2, 0, 1))
sketch15.addConstraint(Sketcher.Constraint("Vertical", 0))
sketch15.addConstraint(Sketcher.Constraint("Horizontal", 1))
sketch15.addConstraint(Sketcher.Constraint("Vertical", 2))
sketch15.addConstraint(Sketcher.Constraint("Horizontal", 3))
sketch15.addConstraint(Sketcher.Constraint("DistanceY", 0, 1, 0, 2, Q("0.75 mm")))
sketch15.addConstraint(Sketcher.Constraint("DistanceY", 2, 2, -1, 1, Q("4.5 mm")))
sketch15.addConstraint(Sketcher.Constraint("DistanceX", 1, 1, 1, 2, Q("7.634272 mm")))
sketch15.addConstraint(Sketcher.Constraint("DistanceX", 0, 2, -1, 1, Q("3.817136 mm")))
pocket14 = body.newObject("PartDesign::Pocket", "Pocket013")
pocket14.Profile = sketch15
pocket14.Length = 0.1
pocket14.Reversed = True

# Sketch on XY plane
sketch16 = body.newObject("Sketcher::SketchObject", "Sketch015")
sketch16.AttachmentSupport = (doc.getObject("XY_Plane"), [""])
sketch16.MapMode = "FlatFace"
sketch16.AttachmentOffset = App.Placement(V(0, 0, -1), App.Rotation())
sketch16.addGeometry(Part.LineSegment(V(-3.8, -6, 0), V(-3.8, -5.2, 0)), False)
sketch16.addGeometry(Part.LineSegment(V(-3.8, -5.2, 0), V(3.8, -5.2, 0)), False)
sketch16.addGeometry(Part.LineSegment(V(3.8, -5.2, 0), V(3.8, -6, 0)), False)
sketch16.addGeometry(Part.LineSegment(V(3.8, -6, 0), V(-3.8, -6, 0)), False)
sketch16.addConstraint(Sketcher.Constraint("Coincident", 0, 2, 1, 1))
sketch16.addConstraint(Sketcher.Constraint("Coincident", 1, 2, 2, 1))
sketch16.addConstraint(Sketcher.Constraint("Coincident", 2, 2, 3, 1))
sketch16.addConstraint(Sketcher.Constraint("Coincident", 3, 2, 0, 1))
sketch16.addConstraint(Sketcher.Constraint("Vertical", 0))
sketch16.addConstraint(Sketcher.Constraint("Horizontal", 1))
sketch16.addConstraint(Sketcher.Constraint("Vertical", 2))
sketch16.addConstraint(Sketcher.Constraint("Horizontal", 3))
sketch16.addConstraint(Sketcher.Constraint("DistanceY", 2, 2, -1, 1, Q("6 mm")))
sketch16.addConstraint(Sketcher.Constraint("DistanceY", 0, 1, 0, 2, Q("0.75 mm")))
sketch16.addConstraint(Sketcher.Constraint("DistanceX", 1, 1, 1, 2, Q("7.634272 mm")))
sketch16.addConstraint(Sketcher.Constraint("DistanceX", 0, 2, -1, 1, Q("3.817136 mm")))
pocket15 = body.newObject("PartDesign::Pocket", "Pocket014")
pocket15.Profile = sketch16
pocket15.Length = 0.1
pocket15.Reversed = True

# Sketch on XY plane
sketch17 = body.newObject("Sketcher::SketchObject", "Sketch016")
sketch17.AttachmentSupport = (doc.getObject("XY_Plane"), [""])
sketch17.MapMode = "FlatFace"
sketch17.AttachmentOffset = App.Placement(V(0, 0, -1), App.Rotation())
sketch17.addGeometry(Part.LineSegment(V(-3.8, -7.5, 0), V(-3.8, -6.8, 0)), False)
sketch17.addGeometry(Part.LineSegment(V(-3.8, -6.8, 0), V(3.8, -6.8, 0)), False)
sketch17.addGeometry(Part.LineSegment(V(3.8, -6.8, 0), V(3.8, -7.5, 0)), False)
sketch17.addGeometry(Part.LineSegment(V(3.8, -7.5, 0), V(-3.8, -7.5, 0)), False)
sketch17.addConstraint(Sketcher.Constraint("Coincident", 0, 2, 1, 1))
sketch17.addConstraint(Sketcher.Constraint("Coincident", 1, 2, 2, 1))
sketch17.addConstraint(Sketcher.Constraint("Coincident", 2, 2, 3, 1))
sketch17.addConstraint(Sketcher.Constraint("Coincident", 3, 2, 0, 1))
sketch17.addConstraint(Sketcher.Constraint("Vertical", 0))
sketch17.addConstraint(Sketcher.Constraint("Horizontal", 1))
sketch17.addConstraint(Sketcher.Constraint("Vertical", 2))
sketch17.addConstraint(Sketcher.Constraint("Horizontal", 3))
sketch17.addConstraint(Sketcher.Constraint("DistanceY", 0, 1, 0, 2, Q("0.75 mm")))
sketch17.addConstraint(Sketcher.Constraint("DistanceY", 2, 2, -1, 1, Q("7.5 mm")))
sketch17.addConstraint(Sketcher.Constraint("DistanceX", 1, 1, 1, 2, Q("7.634272 mm")))
sketch17.addConstraint(Sketcher.Constraint("DistanceX", 0, 2, -1, 1, Q("3.817136 mm")))
pocket16 = body.newObject("PartDesign::Pocket", "Pocket015")
pocket16.Profile = sketch17
pocket16.Length = 0.1
pocket16.Reversed = True

# Sketch on XY plane
sketch18 = body.newObject("Sketcher::SketchObject", "Sketch017")
sketch18.AttachmentSupport = (doc.getObject("XY_Plane"), [""])
sketch18.MapMode = "FlatFace"
sketch18.AttachmentOffset = App.Placement(V(0, 0, -1), App.Rotation())
sketch18.addGeometry(Part.LineSegment(V(-3.8, -9, 0), V(-3.8, -8.2, 0)), False)
sketch18.addGeometry(Part.LineSegment(V(-3.8, -8.2, 0), V(3.8, -8.2, 0)), False)
sketch18.addGeometry(Part.LineSegment(V(3.8, -8.2, 0), V(3.8, -9, 0)), False)
sketch18.addGeometry(Part.LineSegment(V(3.8, -9, 0), V(-3.8, -9, 0)), False)
sketch18.addConstraint(Sketcher.Constraint("Coincident", 0, 2, 1, 1))
sketch18.addConstraint(Sketcher.Constraint("Coincident", 1, 2, 2, 1))
sketch18.addConstraint(Sketcher.Constraint("Coincident", 2, 2, 3, 1))
sketch18.addConstraint(Sketcher.Constraint("Coincident", 3, 2, 0, 1))
sketch18.addConstraint(Sketcher.Constraint("Vertical", 0))
sketch18.addConstraint(Sketcher.Constraint("Horizontal", 1))
sketch18.addConstraint(Sketcher.Constraint("Vertical", 2))
sketch18.addConstraint(Sketcher.Constraint("Horizontal", 3))
sketch18.addConstraint(Sketcher.Constraint("DistanceY", 2, 2, -1, 1, Q("9 mm")))
sketch18.addConstraint(Sketcher.Constraint("DistanceY", 0, 1, 0, 2, Q("0.75 mm")))
sketch18.addConstraint(Sketcher.Constraint("DistanceX", 1, 1, 1, 2, Q("7.634272 mm")))
sketch18.addConstraint(Sketcher.Constraint("DistanceX", 0, 2, -1, 1, Q("3.817136 mm")))
pocket17 = body.newObject("PartDesign::Pocket", "Pocket016")
pocket17.Profile = sketch18
pocket17.Length = 0.1
pocket17.Reversed = True

# Sketch on XY plane
sketch19 = body.newObject("Sketcher::SketchObject", "Sketch018")
sketch19.AttachmentSupport = (doc.getObject("XY_Plane"), [""])
sketch19.MapMode = "FlatFace"
sketch19.AttachmentOffset = App.Placement(V(0, 0, -1), App.Rotation())
sketch19.addGeometry(Part.LineSegment(V(-3.8, -10.5, 0), V(-3.8, -9.8, 0)), False)
sketch19.addGeometry(Part.LineSegment(V(-3.8, -9.8, 0), V(3.8, -9.8, 0)), False)
sketch19.addGeometry(Part.LineSegment(V(3.8, -9.8, 0), V(3.8, -10.5, 0)), False)
sketch19.addGeometry(Part.LineSegment(V(3.8, -10.5, 0), V(-3.8, -10.5, 0)), False)
sketch19.addConstraint(Sketcher.Constraint("Coincident", 0, 2, 1, 1))
sketch19.addConstraint(Sketcher.Constraint("Coincident", 1, 2, 2, 1))
sketch19.addConstraint(Sketcher.Constraint("Coincident", 2, 2, 3, 1))
sketch19.addConstraint(Sketcher.Constraint("Coincident", 3, 2, 0, 1))
sketch19.addConstraint(Sketcher.Constraint("Vertical", 0))
sketch19.addConstraint(Sketcher.Constraint("Horizontal", 1))
sketch19.addConstraint(Sketcher.Constraint("Vertical", 2))
sketch19.addConstraint(Sketcher.Constraint("Horizontal", 3))
sketch19.addConstraint(Sketcher.Constraint("DistanceY", 0, 1, 0, 2, Q("0.75 mm")))
sketch19.addConstraint(Sketcher.Constraint("DistanceY", 2, 2, -1, 1, Q("10.5 mm")))
sketch19.addConstraint(Sketcher.Constraint("DistanceX", 1, 1, 1, 2, Q("7.634272 mm")))
sketch19.addConstraint(Sketcher.Constraint("DistanceX", 0, 2, -1, 1, Q("3.817136 mm")))
pocket18 = body.newObject("PartDesign::Pocket", "Pocket017")
pocket18.Profile = sketch19
pocket18.Length = 0.1
pocket18.Reversed = True

# Sketch on XY plane
sketch20 = body.newObject("Sketcher::SketchObject", "Sketch019")
sketch20.AttachmentSupport = (doc.getObject("XY_Plane"), [""])
sketch20.MapMode = "FlatFace"
sketch20.AttachmentOffset = App.Placement(V(0, 0, -1), App.Rotation())
sketch20.addGeometry(Part.LineSegment(V(-3.8, -12, 0), V(-3.8, -11.2, 0)), False)
sketch20.addGeometry(Part.LineSegment(V(-3.8, -11.2, 0), V(3.8, -11.2, 0)), False)
sketch20.addGeometry(Part.LineSegment(V(3.8, -11.2, 0), V(3.8, -12, 0)), False)
sketch20.addGeometry(Part.LineSegment(V(3.8, -12, 0), V(-3.8, -12, 0)), False)
sketch20.addConstraint(Sketcher.Constraint("Coincident", 0, 2, 1, 1))
sketch20.addConstraint(Sketcher.Constraint("Coincident", 1, 2, 2, 1))
sketch20.addConstraint(Sketcher.Constraint("Coincident", 2, 2, 3, 1))
sketch20.addConstraint(Sketcher.Constraint("Coincident", 3, 2, 0, 1))
sketch20.addConstraint(Sketcher.Constraint("Vertical", 0))
sketch20.addConstraint(Sketcher.Constraint("Horizontal", 1))
sketch20.addConstraint(Sketcher.Constraint("Vertical", 2))
sketch20.addConstraint(Sketcher.Constraint("Horizontal", 3))
sketch20.addConstraint(Sketcher.Constraint("DistanceY", 2, 2, -1, 1, Q("12 mm")))
sketch20.addConstraint(Sketcher.Constraint("DistanceY", 0, 1, 0, 2, Q("0.75 mm")))
sketch20.addConstraint(Sketcher.Constraint("DistanceX", 1, 1, 1, 2, Q("7.634272 mm")))
sketch20.addConstraint(Sketcher.Constraint("DistanceX", 0, 2, -1, 1, Q("3.817136 mm")))
pocket19 = body.newObject("PartDesign::Pocket", "Pocket018")
pocket19.Profile = sketch20
pocket19.Length = 0.1
pocket19.Reversed = True

# Sketch on XY plane
sketch21 = body.newObject("Sketcher::SketchObject", "Sketch020")
sketch21.AttachmentSupport = (doc.getObject("XY_Plane"), [""])
sketch21.MapMode = "FlatFace"
sketch21.AttachmentOffset = App.Placement(V(0, 0, -1), App.Rotation())
sketch21.addGeometry(Part.LineSegment(V(-3.8, -13.5, 0), V(-3.8, -12.8, 0)), False)
sketch21.addGeometry(Part.LineSegment(V(-3.8, -12.8, 0), V(3.8, -12.8, 0)), False)
sketch21.addGeometry(Part.LineSegment(V(3.8, -12.8, 0), V(3.8, -13.5, 0)), False)
sketch21.addGeometry(Part.LineSegment(V(3.8, -13.5, 0), V(-3.8, -13.5, 0)), False)
sketch21.addConstraint(Sketcher.Constraint("Coincident", 0, 2, 1, 1))
sketch21.addConstraint(Sketcher.Constraint("Coincident", 1, 2, 2, 1))
sketch21.addConstraint(Sketcher.Constraint("Coincident", 2, 2, 3, 1))
sketch21.addConstraint(Sketcher.Constraint("Coincident", 3, 2, 0, 1))
sketch21.addConstraint(Sketcher.Constraint("Vertical", 0))
sketch21.addConstraint(Sketcher.Constraint("Horizontal", 1))
sketch21.addConstraint(Sketcher.Constraint("Vertical", 2))
sketch21.addConstraint(Sketcher.Constraint("Horizontal", 3))
sketch21.addConstraint(Sketcher.Constraint("DistanceY", 0, 1, 0, 2, Q("0.75 mm")))
sketch21.addConstraint(Sketcher.Constraint("DistanceY", 2, 2, -1, 1, Q("13.5 mm")))
sketch21.addConstraint(Sketcher.Constraint("DistanceX", 1, 1, 1, 2, Q("7.634272 mm")))
sketch21.addConstraint(Sketcher.Constraint("DistanceX", 0, 2, -1, 1, Q("3.817136 mm")))
pocket20 = body.newObject("PartDesign::Pocket", "Pocket019")
pocket20.Profile = sketch21
pocket20.Length = 0.1
pocket20.Reversed = True

doc.recompute()
